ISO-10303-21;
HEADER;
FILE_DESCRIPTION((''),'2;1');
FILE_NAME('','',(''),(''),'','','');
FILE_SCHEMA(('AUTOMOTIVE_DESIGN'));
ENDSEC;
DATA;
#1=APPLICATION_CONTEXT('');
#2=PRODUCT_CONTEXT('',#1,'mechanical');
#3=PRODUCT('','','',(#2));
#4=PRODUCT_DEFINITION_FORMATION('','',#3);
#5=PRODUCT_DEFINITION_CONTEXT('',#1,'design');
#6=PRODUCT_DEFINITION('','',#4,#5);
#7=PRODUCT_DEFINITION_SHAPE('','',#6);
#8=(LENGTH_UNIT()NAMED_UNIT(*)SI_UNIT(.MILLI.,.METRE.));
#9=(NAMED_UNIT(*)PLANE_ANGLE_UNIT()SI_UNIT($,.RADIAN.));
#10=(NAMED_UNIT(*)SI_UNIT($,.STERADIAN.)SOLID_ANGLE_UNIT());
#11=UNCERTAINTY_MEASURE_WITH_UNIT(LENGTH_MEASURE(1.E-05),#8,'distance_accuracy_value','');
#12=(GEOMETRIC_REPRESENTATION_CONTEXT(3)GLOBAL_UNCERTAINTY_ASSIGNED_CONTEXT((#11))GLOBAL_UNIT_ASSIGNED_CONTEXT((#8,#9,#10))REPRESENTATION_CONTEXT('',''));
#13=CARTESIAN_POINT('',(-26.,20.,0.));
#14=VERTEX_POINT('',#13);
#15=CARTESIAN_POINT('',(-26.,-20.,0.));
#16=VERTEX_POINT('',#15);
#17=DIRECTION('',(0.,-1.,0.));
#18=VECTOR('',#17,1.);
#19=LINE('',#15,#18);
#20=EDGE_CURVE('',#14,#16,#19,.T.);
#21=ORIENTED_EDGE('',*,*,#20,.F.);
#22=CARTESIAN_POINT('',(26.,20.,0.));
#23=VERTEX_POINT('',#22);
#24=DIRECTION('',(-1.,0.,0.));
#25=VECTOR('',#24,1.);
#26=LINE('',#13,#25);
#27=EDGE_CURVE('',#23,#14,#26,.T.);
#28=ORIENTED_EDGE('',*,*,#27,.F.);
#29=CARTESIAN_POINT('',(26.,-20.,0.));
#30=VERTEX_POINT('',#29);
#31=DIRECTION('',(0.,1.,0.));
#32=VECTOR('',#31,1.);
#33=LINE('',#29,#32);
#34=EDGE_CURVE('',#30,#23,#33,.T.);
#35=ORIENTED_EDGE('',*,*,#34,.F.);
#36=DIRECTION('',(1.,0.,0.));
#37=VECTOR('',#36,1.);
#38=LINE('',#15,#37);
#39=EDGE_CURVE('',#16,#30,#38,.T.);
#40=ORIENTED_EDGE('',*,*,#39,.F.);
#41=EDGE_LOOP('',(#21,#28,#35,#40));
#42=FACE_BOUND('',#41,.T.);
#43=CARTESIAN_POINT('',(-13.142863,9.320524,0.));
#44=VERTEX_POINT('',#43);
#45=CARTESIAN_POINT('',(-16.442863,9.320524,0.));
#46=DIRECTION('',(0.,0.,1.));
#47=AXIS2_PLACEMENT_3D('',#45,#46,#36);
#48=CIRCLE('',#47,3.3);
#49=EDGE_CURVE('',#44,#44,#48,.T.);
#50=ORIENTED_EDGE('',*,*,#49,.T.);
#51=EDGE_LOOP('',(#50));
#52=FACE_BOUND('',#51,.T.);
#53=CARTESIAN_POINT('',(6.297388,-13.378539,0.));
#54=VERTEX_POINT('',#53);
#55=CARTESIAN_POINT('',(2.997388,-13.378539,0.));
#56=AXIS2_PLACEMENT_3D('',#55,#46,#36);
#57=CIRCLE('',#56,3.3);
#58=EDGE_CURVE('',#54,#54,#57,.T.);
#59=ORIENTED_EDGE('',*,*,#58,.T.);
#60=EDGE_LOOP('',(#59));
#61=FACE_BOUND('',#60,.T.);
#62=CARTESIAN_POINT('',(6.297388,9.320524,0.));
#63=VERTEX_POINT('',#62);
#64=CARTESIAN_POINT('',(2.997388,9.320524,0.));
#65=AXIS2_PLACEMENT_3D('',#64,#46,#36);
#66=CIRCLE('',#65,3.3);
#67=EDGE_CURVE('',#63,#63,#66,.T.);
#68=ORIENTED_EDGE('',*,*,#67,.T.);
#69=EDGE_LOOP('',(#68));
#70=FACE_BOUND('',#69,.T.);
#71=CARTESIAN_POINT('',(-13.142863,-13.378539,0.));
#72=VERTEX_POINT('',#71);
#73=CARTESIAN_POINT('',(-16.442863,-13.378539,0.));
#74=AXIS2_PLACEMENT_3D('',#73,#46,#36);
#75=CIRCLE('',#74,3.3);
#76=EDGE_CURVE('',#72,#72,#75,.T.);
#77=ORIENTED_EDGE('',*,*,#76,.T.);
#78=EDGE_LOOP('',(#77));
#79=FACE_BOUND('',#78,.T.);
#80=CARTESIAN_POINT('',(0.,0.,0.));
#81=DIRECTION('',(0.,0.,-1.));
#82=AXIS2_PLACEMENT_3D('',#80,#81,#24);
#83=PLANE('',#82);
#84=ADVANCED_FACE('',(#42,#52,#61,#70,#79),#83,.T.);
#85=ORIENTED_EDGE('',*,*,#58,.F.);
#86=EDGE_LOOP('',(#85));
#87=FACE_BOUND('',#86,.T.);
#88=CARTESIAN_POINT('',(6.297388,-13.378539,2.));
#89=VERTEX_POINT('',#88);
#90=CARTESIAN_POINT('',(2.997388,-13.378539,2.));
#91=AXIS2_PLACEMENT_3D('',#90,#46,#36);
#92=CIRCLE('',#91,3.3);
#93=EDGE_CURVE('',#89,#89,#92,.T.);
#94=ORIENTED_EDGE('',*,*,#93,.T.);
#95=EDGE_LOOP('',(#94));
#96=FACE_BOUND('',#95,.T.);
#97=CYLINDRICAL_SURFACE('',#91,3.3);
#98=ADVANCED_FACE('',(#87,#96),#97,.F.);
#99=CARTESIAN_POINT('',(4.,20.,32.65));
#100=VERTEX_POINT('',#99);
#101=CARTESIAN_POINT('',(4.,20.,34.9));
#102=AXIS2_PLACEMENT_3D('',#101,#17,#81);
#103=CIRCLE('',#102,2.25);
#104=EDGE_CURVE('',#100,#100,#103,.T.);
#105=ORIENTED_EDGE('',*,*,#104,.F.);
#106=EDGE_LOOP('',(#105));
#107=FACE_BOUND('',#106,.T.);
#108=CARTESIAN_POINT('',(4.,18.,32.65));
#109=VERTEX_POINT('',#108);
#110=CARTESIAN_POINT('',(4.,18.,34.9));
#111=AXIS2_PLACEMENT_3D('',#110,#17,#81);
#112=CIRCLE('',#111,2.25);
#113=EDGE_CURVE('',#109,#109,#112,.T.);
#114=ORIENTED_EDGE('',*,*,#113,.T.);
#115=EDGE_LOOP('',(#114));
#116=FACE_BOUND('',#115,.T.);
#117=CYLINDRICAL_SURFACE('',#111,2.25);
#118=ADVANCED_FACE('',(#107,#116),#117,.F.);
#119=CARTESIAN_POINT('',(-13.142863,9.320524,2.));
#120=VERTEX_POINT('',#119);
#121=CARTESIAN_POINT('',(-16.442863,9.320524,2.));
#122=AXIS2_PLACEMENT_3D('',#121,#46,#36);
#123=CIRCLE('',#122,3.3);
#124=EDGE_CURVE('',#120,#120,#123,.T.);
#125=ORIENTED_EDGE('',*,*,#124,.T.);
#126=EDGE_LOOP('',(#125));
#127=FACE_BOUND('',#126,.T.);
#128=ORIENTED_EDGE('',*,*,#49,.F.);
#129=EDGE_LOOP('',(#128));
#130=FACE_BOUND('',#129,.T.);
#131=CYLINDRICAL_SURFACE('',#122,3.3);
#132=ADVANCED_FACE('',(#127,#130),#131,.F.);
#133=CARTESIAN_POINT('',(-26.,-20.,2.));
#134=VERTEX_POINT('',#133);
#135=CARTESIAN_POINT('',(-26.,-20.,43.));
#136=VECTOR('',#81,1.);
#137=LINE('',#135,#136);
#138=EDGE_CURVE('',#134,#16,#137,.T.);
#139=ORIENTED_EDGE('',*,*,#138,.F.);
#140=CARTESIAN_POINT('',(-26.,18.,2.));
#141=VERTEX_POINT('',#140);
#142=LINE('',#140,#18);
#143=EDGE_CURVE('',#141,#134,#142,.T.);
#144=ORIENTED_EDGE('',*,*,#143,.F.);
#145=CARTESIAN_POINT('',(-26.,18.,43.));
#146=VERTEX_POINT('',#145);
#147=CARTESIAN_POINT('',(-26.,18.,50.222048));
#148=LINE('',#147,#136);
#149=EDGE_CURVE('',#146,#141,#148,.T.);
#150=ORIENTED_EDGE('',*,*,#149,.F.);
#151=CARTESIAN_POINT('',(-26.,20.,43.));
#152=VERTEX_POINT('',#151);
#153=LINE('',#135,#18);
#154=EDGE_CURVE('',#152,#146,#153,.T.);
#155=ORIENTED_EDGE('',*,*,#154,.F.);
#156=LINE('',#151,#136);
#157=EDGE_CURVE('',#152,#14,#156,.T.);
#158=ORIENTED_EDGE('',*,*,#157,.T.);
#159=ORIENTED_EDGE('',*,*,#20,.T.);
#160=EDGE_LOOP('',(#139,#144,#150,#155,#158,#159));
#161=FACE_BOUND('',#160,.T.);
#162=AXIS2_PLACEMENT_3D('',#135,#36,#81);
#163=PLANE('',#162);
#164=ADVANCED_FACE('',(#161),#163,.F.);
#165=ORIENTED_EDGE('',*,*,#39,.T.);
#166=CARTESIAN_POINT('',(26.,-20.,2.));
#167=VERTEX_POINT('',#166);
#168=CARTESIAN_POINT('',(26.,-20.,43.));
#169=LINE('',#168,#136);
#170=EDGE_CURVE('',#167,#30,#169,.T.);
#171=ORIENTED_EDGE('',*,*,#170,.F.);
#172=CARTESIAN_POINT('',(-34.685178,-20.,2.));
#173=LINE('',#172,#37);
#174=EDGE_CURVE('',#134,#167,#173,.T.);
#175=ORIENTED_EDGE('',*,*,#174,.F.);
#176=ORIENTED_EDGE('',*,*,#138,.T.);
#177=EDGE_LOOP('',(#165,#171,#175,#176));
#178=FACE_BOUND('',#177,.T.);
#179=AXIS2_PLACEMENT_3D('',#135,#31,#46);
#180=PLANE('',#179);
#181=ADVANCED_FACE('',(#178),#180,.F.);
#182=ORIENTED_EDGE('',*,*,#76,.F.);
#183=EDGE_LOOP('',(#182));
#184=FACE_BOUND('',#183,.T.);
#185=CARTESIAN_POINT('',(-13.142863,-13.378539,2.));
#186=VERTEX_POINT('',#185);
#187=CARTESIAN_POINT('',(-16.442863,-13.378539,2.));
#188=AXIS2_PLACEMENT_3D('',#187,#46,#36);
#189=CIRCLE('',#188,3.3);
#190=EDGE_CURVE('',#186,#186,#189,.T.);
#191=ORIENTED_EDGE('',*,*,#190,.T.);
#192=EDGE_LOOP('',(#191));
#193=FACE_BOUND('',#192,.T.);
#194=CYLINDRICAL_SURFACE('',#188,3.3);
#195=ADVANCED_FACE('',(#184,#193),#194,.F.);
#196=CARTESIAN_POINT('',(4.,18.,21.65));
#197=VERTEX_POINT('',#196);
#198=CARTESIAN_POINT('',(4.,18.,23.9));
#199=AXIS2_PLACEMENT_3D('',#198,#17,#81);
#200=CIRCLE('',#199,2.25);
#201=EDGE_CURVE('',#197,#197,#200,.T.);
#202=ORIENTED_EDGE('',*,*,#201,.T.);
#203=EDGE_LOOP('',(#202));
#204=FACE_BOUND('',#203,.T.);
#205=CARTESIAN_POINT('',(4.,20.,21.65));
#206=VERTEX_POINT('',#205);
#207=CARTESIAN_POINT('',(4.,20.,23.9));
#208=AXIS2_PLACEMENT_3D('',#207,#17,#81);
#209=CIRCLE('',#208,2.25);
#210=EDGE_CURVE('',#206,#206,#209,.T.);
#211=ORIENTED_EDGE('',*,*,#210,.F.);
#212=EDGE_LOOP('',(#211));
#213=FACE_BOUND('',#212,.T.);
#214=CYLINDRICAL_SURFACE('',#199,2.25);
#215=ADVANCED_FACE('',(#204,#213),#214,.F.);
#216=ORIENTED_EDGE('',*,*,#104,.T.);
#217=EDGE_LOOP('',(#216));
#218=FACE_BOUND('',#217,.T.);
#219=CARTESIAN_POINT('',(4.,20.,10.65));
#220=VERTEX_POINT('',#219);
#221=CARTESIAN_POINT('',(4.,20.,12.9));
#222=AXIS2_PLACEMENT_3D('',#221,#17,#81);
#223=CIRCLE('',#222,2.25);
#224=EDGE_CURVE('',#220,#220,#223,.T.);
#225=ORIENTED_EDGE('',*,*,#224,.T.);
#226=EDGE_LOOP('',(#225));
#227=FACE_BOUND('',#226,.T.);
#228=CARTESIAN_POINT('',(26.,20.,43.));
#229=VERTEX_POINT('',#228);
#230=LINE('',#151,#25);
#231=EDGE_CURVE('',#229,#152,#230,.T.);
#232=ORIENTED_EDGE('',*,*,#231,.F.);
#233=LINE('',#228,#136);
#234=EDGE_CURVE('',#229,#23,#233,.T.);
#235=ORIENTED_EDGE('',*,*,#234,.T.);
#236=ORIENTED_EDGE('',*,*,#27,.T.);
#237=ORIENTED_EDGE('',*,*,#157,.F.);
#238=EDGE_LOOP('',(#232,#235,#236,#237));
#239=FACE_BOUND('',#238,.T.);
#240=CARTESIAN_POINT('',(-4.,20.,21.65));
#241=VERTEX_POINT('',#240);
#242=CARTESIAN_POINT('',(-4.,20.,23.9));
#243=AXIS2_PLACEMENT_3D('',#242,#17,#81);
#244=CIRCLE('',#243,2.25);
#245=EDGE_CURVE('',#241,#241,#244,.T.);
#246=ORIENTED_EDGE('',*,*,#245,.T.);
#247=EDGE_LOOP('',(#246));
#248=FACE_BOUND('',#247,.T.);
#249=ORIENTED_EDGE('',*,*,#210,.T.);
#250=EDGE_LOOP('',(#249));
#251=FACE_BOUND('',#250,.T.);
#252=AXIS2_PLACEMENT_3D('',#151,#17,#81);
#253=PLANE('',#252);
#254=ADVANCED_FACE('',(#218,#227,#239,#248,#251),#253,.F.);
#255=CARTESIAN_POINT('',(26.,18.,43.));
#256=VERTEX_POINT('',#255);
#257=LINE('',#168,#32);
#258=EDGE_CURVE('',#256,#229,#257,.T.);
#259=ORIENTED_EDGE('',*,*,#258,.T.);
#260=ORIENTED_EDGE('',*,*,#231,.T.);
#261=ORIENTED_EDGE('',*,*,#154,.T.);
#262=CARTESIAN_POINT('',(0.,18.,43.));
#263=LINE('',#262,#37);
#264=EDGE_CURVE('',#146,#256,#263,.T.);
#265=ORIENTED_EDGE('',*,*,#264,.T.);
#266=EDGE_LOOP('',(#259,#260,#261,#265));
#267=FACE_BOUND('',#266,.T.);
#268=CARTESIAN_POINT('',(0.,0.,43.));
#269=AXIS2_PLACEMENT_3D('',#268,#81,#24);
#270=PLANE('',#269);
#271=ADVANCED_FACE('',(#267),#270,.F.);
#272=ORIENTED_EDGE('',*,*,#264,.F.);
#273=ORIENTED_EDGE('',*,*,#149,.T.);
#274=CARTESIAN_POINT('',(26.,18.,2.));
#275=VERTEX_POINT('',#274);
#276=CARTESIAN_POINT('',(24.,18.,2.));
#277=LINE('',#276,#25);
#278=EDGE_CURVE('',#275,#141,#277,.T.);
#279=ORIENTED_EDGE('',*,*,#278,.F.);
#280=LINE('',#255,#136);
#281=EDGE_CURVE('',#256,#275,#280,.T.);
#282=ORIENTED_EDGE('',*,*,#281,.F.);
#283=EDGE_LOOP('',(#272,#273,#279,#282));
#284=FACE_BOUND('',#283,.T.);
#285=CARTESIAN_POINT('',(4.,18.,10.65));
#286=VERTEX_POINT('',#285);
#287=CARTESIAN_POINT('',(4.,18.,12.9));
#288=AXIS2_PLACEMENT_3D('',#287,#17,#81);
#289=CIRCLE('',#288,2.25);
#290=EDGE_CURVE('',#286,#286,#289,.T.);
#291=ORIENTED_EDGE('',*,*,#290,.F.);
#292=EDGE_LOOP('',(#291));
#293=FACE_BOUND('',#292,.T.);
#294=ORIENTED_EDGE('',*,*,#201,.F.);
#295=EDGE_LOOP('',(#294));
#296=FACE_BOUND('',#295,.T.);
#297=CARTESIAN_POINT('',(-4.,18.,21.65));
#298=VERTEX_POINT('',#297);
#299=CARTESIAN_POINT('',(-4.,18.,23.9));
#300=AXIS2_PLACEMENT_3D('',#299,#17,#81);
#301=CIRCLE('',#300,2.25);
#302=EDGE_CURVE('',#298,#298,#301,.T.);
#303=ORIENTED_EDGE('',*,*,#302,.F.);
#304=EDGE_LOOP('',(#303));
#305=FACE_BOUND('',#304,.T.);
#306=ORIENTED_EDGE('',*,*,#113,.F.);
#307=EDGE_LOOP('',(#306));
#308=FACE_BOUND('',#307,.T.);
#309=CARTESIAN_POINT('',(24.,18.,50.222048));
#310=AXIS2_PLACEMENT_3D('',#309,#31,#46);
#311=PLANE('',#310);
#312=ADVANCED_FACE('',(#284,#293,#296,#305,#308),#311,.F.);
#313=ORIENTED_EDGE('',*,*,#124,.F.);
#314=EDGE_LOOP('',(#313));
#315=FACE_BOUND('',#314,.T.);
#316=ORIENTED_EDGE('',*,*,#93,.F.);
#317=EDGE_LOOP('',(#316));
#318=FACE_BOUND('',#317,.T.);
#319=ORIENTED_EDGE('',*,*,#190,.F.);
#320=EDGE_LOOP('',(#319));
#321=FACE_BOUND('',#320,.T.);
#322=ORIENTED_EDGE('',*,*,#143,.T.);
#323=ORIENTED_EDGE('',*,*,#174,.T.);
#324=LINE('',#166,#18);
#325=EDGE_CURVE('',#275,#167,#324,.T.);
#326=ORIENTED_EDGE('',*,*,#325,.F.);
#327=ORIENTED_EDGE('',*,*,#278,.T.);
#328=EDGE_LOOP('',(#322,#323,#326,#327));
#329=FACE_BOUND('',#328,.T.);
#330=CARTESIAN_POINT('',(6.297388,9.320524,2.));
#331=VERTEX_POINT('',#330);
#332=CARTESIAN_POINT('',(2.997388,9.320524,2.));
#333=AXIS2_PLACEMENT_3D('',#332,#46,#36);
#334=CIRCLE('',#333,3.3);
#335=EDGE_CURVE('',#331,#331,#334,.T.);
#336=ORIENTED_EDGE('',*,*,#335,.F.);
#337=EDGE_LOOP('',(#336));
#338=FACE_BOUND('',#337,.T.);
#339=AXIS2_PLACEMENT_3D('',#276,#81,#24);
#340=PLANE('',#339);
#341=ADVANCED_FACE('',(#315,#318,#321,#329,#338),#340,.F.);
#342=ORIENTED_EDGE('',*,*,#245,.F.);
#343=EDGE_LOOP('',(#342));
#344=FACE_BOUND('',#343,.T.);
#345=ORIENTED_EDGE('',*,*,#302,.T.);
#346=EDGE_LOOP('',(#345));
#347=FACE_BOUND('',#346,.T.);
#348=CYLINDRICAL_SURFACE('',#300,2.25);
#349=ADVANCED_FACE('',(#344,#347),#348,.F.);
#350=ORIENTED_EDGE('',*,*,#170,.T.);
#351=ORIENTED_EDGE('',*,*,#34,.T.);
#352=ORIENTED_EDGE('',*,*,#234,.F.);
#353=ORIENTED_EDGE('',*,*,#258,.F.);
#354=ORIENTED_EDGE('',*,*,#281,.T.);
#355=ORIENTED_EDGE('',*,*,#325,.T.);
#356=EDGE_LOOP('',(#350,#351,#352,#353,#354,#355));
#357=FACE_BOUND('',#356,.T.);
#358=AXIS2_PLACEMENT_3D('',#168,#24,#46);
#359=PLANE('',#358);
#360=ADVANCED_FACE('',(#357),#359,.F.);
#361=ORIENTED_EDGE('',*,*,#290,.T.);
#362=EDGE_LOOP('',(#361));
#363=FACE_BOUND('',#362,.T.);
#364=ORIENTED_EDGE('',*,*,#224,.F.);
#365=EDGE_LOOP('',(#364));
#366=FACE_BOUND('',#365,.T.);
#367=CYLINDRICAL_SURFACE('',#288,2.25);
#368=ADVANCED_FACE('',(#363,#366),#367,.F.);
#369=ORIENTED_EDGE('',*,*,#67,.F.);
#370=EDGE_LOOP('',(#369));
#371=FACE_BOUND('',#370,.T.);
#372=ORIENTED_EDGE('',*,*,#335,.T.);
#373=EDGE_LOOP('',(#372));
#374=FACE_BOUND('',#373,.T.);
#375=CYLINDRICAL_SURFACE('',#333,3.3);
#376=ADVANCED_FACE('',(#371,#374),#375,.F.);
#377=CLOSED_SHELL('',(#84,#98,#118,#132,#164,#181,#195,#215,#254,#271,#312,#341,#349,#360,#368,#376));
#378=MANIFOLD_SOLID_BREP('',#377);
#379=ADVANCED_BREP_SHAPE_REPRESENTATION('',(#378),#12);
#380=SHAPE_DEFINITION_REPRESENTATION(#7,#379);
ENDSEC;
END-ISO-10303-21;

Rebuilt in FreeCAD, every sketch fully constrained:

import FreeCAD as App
import Part
import Sketcher

V = App.Vector
Q = App.Units.Quantity

doc = App.newDocument("Part")
body = doc.addObject("PartDesign::Body", "Body")

# Sketch on XY plane
sketch1 = body.newObject("Sketcher::SketchObject", "Sketch")
sketch1.AttachmentSupport = (doc.getObject("XY_Plane"), [""])
sketch1.MapMode = "FlatFace"
sketch1.addGeometry([
    Part.LineSegment(V(-26, 20, 0), V(-26, -20, 0)),
    Part.LineSegment(V(-26, -20, 0), V(26, -20, 0)),
    Part.LineSegment(V(26, -20, 0), V(26, 20, 0)),
    Part.LineSegment(V(26, 20, 0), V(-26, 20, 0)),
], False)
sketch1.addConstraint([
    Sketcher.Constraint("Coincident", 0, 2, 1, 1),
    Sketcher.Constraint("Coincident", 1, 2, 2, 1),
    Sketcher.Constraint("Coincident", 2, 2, 3, 1),
    Sketcher.Constraint("Coincident", 3, 2, 0, 1),
    Sketcher.Constraint("Vertical", 0),
    Sketcher.Constraint("Horizontal", 1),
    Sketcher.Constraint("Vertical", 2),
    Sketcher.Constraint("Horizontal", 3),
    Sketcher.Constraint("Symmetric", 0, 2, 2, 2, -1, 1),
    Sketcher.Constraint("DistanceX", 1, 1, 1, 2, Q("52 mm")),
    Sketcher.Constraint("DistanceY", 0, 2, 0, 1, Q("40 mm")),
])
pad1 = body.newObject("PartDesign::Pad", "Pad")
pad1.Profile = sketch1
pad1.Length = 43

# Sketch on YZ plane
sketch2 = body.newObject("Sketcher::SketchObject", "Sketch001")
sketch2.AttachmentSupport = (doc.getObject("YZ_Plane"), [""])
sketch2.MapMode = "FlatFace"
sketch2.AttachmentOffset = App.Placement(V(0, 0, -26), App.Rotation())
sketch2.addGeometry([
    Part.LineSegment(V(18, 2, 0), V(-18, 2, 0)),
    Part.LineSegment(V(-18, 2, 0), V(-18, 50.222048, 0)),
    Part.LineSegment(V(-18, 50.222048, 0), V(18, 50.222048, 0)),
    Part.LineSegment(V(18, 50.222048, 0), V(18, 2, 0)),
], False)
sketch2.addConstraint([
    Sketcher.Constraint("Coincident", 0, 2, 1, 1),
    Sketcher.Constraint("Coincident", 1, 2, 2, 1),
    Sketcher.Constraint("Coincident", 2, 2, 3, 1),
    Sketcher.Constraint("Coincident", 3, 2, 0, 1),
    Sketcher.Constraint("Horizontal", 0),
    Sketcher.Constraint("Vertical", 1),
    Sketcher.Constraint("Horizontal", 2),
    Sketcher.Constraint("Vertical", 3),
    Sketcher.Constraint("DistanceX", 0, 2, 0, 1, Q("36 mm")),
    Sketcher.Constraint("DistanceX", 0, 2, -1, 1, Q("18 mm")),
    Sketcher.Constraint("DistanceY", -1, 1, 0, 2, Q("2 mm")),
    Sketcher.Constraint("DistanceY", 1, 1, 1, 2, Q("48.222048 mm")),
])
pocket1 = body.newObject("PartDesign::Pocket", "Pocket")
pocket1.Profile = sketch2
pocket1.Length = 50
pocket1.Reversed = True

# Sketch on XZ plane
sketch3 = body.newObject("Sketcher::SketchObject", "Sketch002")
sketch3.AttachmentSupport = (doc.getObject("XZ_Plane"), [""])
sketch3.MapMode = "FlatFace"
sketch3.AttachmentOffset = App.Placement(V(0, 0, 20), App.Rotation())
sketch3.addGeometry([
    Part.LineSegment(V(-34.685178, 52.534375, 0), V(-34.685178, 2, 0)),
    Part.LineSegment(V(-34.685178, 2, 0), V(38.000932, 2, 0)),
    Part.LineSegment(V(38.000932, 2, 0), V(38.000932, 52.534375, 0)),
    Part.LineSegment(V(38.000932, 52.534375, 0), V(-34.685178, 52.534375, 0)),
], False)
sketch3.addConstraint([
    Sketcher.Constraint("Coincident", 0, 2, 1, 1),
    Sketcher.Constraint("Coincident", 1, 2, 2, 1),
    Sketcher.Constraint("Coincident", 2, 2, 3, 1),
    Sketcher.Constraint("Coincident", 3, 2, 0, 1),
    Sketcher.Constraint("Vertical", 0),
    Sketcher.Constraint("Horizontal", 1),
    Sketcher.Constraint("Vertical", 2),
    Sketcher.Constraint("Horizontal", 3),
    Sketcher.Constraint("DistanceY", -1, 1, 0, 2, Q("2 mm")),
    Sketcher.Constraint("DistanceX", 1, 1, 1, 2, Q("72.68611 mm")),
    Sketcher.Constraint("DistanceY", 0, 2, 0, 1, Q("50.534375 mm")),
    Sketcher.Constraint("DistanceX", 0, 2, -1, 1, Q("34.685178 mm")),
])
pocket2 = body.newObject("PartDesign::Pocket", "Pocket001")
pocket2.Profile = sketch3
pocket2.Length = 38

# Sketch on XY plane
sketch4 = body.newObject("Sketcher::SketchObject", "Sketch003")
sketch4.AttachmentSupport = (doc.getObject("XY_Plane"), [""])
sketch4.MapMode = "FlatFace"
sketch4.AttachmentOffset = App.Placement(V(0, 0, 2), App.Rotation())
sketch4.addGeometry([
    Part.Circle(V(2.997388, 9.320524, 0), V(0, 0, 1), 3.3),
    Part.Circle(V(-16.442863, 9.320524, 0), V(0, 0, 1), 3.3),
    Part.Circle(V(-16.442863, -13.378539, 0), V(0, 0, 1), 3.3),
    Part.Circle(V(2.997388, -13.378539, 0), V(0, 0, 1), 3.3),
], False)
sketch4.addConstraint([
    Sketcher.Constraint("Equal", 0, 1),
    Sketcher.Constraint("Equal", 1, 2),
    Sketcher.Constraint("Equal", 2, 3),
    Sketcher.Constraint("Horizontal", 0, 3, 1, 3),
    Sketcher.Constraint("Horizontal", 2, 3, 3, 3),
    Sketcher.Constraint("Vertical", 1, 3, 2, 3),
    Sketcher.Constraint("Vertical", 0, 3, 3, 3),
    Sketcher.Constraint("Diameter", 0, Q("6.6 mm")),
    Sketcher.Constraint("DistanceY", 2, 3, -1, 1, Q("13.378539 mm")),
    Sketcher.Constraint("DistanceX", 1, 3, 0, 3, Q("19.440251 mm")),
    Sketcher.Constraint("DistanceX", -1, 1, 0, 3, Q("2.997388 mm")),
    Sketcher.Constraint("DistanceY", -1, 1, 0, 3, Q("9.320524 mm")),
])
doc.recompute()
hole = body.newObject("PartDesign::Hole", "Hole")
hole.Profile = sketch4
hole.ThreadType = "None"
hole.Diameter = 6.6
hole.DepthType = "ThroughAll"

# Sketch on XZ plane
sketch5 = body.newObject("Sketcher::SketchObject", "Sketch004")
sketch5.AttachmentSupport = (doc.getObject("XZ_Plane"), [""])
sketch5.MapMode = "FlatFace"
sketch5.AttachmentOffset = App.Placement(V(0, 0, -18), App.Rotation())
sketch5.addGeometry([
    Part.Circle(V(4, 34.9, 0), V(0, 0, 1), 2.25),
    Part.Circle(V(4, 23.9, 0), V(0, 0, 1), 2.25),
    Part.Circle(V(4, 12.9, 0), V(0, 0, 1), 2.25),
    Part.Circle(V(-4, 23.9, 0), V(0, 0, 1), 2.25),
], False)
sketch5.addConstraint([
    Sketcher.Constraint("Equal", 0, 1),
    Sketcher.Constraint("Equal", 1, 2),
    Sketcher.Constraint("Equal", 2, 3),
    Sketcher.Constraint("Symmetric", 1, 3, 3, 3, -2),
    Sketcher.Constraint("Vertical", 0, 3, 1, 3),
    Sketcher.Constraint("Vertical", 1, 3, 2, 3),
    Sketcher.Constraint("Diameter", 0, Q("4.5 mm")),
    Sketcher.Constraint("DistanceX", -1, 1, 0, 3, Q("4 mm")),
    Sketcher.Constraint("DistanceY", 1, 3, 0, 3, Q("11 mm")),
    Sketcher.Constraint("DistanceY", 2, 3, 1, 3, Q("11 mm")),
    Sketcher.Constraint("DistanceY", -1, 1, 0, 3, Q("34.9 mm")),
])
doc.recompute()
hole2 = body.newObject("PartDesign::Hole", "Hole001")
hole2.Profile = sketch5
hole2.ThreadType = "None"
hole2.Diameter = 4.5
hole2.DepthType = "ThroughAll"

doc.recompute()
